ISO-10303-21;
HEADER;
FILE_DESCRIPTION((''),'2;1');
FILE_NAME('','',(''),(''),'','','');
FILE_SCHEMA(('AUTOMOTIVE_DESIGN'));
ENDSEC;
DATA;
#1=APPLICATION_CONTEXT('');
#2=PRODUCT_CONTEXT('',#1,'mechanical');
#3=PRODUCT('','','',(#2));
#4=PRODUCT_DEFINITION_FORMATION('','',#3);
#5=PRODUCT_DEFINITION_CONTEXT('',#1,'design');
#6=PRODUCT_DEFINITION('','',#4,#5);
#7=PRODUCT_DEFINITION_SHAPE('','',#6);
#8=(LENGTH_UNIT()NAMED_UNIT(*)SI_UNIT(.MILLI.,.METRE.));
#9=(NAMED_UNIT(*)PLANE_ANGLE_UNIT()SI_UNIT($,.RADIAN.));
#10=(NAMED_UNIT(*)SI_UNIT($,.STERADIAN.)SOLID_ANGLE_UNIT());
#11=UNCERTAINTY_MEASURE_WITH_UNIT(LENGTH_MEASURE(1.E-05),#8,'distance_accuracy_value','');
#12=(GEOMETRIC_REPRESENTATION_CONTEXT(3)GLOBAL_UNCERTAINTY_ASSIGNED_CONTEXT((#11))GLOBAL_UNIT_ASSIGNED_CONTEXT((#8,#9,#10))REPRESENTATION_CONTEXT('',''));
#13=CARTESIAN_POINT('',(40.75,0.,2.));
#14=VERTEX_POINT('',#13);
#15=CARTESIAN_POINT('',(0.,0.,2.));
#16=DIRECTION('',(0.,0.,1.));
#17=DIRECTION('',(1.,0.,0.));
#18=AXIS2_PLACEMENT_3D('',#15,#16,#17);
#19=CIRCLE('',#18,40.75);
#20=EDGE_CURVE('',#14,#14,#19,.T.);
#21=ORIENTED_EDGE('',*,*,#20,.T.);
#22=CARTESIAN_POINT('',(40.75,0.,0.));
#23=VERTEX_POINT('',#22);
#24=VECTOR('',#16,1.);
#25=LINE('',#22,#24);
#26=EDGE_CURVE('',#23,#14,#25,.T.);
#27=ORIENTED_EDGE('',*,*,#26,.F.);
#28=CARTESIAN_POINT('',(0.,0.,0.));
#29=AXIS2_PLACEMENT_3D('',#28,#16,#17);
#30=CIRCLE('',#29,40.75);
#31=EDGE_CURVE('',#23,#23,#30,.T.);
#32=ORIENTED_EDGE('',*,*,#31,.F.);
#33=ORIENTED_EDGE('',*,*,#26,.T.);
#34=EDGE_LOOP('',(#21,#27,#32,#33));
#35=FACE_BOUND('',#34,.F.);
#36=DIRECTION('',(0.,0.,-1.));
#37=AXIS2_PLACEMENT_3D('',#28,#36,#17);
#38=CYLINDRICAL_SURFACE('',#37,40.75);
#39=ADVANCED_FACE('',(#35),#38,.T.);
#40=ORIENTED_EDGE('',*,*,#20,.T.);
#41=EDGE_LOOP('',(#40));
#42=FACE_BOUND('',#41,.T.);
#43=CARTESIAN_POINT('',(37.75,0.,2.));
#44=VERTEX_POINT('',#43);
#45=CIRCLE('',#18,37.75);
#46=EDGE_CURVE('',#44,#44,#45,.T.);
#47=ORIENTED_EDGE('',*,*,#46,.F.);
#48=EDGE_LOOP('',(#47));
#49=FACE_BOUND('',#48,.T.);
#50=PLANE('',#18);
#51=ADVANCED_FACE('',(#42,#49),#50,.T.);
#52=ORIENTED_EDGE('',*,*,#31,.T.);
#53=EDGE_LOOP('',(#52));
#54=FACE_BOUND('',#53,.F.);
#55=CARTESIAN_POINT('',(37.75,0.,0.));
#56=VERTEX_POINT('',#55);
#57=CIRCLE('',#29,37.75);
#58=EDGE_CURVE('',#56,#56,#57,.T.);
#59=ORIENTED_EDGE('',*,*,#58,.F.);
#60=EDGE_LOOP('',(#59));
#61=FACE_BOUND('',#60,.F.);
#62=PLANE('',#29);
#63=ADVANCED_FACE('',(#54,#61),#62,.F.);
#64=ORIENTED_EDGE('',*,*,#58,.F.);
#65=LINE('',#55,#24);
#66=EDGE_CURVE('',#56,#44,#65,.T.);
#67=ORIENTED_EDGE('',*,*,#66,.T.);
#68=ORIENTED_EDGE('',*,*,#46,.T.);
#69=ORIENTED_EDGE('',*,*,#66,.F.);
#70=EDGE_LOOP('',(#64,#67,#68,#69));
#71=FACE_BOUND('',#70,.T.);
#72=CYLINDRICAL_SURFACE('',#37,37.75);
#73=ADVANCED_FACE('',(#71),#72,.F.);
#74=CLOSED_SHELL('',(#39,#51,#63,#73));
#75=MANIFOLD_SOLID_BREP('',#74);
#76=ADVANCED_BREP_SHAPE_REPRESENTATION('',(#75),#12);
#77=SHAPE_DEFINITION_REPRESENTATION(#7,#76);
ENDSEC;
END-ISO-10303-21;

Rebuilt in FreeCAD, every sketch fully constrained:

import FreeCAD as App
import Part
import Sketcher

V = App.Vector
Q = App.Units.Quantity

doc = App.newDocument("Part")
body = doc.addObject("PartDesign::Body", "Body")

sketch1 = body.newObject("Sketcher::SketchObject", "Sketch")
sketch1.AttachmentSupport = (doc.getObject("XY_Plane"), [""])
sketch1.MapMode = "FlatFace"
sketch1.addGeometry(Part.Circle(V(0, 0, 0), V(0, 0, 1), 41), False)
sketch1.addGeometry(Part.Circle(V(0, 0, 0), V(0, 0, 1), 38), False)
sketch1.addConstraint(Sketcher.Constraint("Coincident", 0, 3, -1, 1))
sketch1.addConstraint(Sketcher.Constraint("Coincident", 1, 3, -1, 1))
sketch1.addConstraint(Sketcher.Constraint("Diameter", 1, Q("75.5 mm")))
sketch1.addConstraint(Sketcher.Constraint("Diameter", 0, Q("81.5 mm")))
pad1 = body.newObject("PartDesign::Pad", "Pad")
pad1.Profile = sketch1
pad1.Length = 2

doc.recompute()
